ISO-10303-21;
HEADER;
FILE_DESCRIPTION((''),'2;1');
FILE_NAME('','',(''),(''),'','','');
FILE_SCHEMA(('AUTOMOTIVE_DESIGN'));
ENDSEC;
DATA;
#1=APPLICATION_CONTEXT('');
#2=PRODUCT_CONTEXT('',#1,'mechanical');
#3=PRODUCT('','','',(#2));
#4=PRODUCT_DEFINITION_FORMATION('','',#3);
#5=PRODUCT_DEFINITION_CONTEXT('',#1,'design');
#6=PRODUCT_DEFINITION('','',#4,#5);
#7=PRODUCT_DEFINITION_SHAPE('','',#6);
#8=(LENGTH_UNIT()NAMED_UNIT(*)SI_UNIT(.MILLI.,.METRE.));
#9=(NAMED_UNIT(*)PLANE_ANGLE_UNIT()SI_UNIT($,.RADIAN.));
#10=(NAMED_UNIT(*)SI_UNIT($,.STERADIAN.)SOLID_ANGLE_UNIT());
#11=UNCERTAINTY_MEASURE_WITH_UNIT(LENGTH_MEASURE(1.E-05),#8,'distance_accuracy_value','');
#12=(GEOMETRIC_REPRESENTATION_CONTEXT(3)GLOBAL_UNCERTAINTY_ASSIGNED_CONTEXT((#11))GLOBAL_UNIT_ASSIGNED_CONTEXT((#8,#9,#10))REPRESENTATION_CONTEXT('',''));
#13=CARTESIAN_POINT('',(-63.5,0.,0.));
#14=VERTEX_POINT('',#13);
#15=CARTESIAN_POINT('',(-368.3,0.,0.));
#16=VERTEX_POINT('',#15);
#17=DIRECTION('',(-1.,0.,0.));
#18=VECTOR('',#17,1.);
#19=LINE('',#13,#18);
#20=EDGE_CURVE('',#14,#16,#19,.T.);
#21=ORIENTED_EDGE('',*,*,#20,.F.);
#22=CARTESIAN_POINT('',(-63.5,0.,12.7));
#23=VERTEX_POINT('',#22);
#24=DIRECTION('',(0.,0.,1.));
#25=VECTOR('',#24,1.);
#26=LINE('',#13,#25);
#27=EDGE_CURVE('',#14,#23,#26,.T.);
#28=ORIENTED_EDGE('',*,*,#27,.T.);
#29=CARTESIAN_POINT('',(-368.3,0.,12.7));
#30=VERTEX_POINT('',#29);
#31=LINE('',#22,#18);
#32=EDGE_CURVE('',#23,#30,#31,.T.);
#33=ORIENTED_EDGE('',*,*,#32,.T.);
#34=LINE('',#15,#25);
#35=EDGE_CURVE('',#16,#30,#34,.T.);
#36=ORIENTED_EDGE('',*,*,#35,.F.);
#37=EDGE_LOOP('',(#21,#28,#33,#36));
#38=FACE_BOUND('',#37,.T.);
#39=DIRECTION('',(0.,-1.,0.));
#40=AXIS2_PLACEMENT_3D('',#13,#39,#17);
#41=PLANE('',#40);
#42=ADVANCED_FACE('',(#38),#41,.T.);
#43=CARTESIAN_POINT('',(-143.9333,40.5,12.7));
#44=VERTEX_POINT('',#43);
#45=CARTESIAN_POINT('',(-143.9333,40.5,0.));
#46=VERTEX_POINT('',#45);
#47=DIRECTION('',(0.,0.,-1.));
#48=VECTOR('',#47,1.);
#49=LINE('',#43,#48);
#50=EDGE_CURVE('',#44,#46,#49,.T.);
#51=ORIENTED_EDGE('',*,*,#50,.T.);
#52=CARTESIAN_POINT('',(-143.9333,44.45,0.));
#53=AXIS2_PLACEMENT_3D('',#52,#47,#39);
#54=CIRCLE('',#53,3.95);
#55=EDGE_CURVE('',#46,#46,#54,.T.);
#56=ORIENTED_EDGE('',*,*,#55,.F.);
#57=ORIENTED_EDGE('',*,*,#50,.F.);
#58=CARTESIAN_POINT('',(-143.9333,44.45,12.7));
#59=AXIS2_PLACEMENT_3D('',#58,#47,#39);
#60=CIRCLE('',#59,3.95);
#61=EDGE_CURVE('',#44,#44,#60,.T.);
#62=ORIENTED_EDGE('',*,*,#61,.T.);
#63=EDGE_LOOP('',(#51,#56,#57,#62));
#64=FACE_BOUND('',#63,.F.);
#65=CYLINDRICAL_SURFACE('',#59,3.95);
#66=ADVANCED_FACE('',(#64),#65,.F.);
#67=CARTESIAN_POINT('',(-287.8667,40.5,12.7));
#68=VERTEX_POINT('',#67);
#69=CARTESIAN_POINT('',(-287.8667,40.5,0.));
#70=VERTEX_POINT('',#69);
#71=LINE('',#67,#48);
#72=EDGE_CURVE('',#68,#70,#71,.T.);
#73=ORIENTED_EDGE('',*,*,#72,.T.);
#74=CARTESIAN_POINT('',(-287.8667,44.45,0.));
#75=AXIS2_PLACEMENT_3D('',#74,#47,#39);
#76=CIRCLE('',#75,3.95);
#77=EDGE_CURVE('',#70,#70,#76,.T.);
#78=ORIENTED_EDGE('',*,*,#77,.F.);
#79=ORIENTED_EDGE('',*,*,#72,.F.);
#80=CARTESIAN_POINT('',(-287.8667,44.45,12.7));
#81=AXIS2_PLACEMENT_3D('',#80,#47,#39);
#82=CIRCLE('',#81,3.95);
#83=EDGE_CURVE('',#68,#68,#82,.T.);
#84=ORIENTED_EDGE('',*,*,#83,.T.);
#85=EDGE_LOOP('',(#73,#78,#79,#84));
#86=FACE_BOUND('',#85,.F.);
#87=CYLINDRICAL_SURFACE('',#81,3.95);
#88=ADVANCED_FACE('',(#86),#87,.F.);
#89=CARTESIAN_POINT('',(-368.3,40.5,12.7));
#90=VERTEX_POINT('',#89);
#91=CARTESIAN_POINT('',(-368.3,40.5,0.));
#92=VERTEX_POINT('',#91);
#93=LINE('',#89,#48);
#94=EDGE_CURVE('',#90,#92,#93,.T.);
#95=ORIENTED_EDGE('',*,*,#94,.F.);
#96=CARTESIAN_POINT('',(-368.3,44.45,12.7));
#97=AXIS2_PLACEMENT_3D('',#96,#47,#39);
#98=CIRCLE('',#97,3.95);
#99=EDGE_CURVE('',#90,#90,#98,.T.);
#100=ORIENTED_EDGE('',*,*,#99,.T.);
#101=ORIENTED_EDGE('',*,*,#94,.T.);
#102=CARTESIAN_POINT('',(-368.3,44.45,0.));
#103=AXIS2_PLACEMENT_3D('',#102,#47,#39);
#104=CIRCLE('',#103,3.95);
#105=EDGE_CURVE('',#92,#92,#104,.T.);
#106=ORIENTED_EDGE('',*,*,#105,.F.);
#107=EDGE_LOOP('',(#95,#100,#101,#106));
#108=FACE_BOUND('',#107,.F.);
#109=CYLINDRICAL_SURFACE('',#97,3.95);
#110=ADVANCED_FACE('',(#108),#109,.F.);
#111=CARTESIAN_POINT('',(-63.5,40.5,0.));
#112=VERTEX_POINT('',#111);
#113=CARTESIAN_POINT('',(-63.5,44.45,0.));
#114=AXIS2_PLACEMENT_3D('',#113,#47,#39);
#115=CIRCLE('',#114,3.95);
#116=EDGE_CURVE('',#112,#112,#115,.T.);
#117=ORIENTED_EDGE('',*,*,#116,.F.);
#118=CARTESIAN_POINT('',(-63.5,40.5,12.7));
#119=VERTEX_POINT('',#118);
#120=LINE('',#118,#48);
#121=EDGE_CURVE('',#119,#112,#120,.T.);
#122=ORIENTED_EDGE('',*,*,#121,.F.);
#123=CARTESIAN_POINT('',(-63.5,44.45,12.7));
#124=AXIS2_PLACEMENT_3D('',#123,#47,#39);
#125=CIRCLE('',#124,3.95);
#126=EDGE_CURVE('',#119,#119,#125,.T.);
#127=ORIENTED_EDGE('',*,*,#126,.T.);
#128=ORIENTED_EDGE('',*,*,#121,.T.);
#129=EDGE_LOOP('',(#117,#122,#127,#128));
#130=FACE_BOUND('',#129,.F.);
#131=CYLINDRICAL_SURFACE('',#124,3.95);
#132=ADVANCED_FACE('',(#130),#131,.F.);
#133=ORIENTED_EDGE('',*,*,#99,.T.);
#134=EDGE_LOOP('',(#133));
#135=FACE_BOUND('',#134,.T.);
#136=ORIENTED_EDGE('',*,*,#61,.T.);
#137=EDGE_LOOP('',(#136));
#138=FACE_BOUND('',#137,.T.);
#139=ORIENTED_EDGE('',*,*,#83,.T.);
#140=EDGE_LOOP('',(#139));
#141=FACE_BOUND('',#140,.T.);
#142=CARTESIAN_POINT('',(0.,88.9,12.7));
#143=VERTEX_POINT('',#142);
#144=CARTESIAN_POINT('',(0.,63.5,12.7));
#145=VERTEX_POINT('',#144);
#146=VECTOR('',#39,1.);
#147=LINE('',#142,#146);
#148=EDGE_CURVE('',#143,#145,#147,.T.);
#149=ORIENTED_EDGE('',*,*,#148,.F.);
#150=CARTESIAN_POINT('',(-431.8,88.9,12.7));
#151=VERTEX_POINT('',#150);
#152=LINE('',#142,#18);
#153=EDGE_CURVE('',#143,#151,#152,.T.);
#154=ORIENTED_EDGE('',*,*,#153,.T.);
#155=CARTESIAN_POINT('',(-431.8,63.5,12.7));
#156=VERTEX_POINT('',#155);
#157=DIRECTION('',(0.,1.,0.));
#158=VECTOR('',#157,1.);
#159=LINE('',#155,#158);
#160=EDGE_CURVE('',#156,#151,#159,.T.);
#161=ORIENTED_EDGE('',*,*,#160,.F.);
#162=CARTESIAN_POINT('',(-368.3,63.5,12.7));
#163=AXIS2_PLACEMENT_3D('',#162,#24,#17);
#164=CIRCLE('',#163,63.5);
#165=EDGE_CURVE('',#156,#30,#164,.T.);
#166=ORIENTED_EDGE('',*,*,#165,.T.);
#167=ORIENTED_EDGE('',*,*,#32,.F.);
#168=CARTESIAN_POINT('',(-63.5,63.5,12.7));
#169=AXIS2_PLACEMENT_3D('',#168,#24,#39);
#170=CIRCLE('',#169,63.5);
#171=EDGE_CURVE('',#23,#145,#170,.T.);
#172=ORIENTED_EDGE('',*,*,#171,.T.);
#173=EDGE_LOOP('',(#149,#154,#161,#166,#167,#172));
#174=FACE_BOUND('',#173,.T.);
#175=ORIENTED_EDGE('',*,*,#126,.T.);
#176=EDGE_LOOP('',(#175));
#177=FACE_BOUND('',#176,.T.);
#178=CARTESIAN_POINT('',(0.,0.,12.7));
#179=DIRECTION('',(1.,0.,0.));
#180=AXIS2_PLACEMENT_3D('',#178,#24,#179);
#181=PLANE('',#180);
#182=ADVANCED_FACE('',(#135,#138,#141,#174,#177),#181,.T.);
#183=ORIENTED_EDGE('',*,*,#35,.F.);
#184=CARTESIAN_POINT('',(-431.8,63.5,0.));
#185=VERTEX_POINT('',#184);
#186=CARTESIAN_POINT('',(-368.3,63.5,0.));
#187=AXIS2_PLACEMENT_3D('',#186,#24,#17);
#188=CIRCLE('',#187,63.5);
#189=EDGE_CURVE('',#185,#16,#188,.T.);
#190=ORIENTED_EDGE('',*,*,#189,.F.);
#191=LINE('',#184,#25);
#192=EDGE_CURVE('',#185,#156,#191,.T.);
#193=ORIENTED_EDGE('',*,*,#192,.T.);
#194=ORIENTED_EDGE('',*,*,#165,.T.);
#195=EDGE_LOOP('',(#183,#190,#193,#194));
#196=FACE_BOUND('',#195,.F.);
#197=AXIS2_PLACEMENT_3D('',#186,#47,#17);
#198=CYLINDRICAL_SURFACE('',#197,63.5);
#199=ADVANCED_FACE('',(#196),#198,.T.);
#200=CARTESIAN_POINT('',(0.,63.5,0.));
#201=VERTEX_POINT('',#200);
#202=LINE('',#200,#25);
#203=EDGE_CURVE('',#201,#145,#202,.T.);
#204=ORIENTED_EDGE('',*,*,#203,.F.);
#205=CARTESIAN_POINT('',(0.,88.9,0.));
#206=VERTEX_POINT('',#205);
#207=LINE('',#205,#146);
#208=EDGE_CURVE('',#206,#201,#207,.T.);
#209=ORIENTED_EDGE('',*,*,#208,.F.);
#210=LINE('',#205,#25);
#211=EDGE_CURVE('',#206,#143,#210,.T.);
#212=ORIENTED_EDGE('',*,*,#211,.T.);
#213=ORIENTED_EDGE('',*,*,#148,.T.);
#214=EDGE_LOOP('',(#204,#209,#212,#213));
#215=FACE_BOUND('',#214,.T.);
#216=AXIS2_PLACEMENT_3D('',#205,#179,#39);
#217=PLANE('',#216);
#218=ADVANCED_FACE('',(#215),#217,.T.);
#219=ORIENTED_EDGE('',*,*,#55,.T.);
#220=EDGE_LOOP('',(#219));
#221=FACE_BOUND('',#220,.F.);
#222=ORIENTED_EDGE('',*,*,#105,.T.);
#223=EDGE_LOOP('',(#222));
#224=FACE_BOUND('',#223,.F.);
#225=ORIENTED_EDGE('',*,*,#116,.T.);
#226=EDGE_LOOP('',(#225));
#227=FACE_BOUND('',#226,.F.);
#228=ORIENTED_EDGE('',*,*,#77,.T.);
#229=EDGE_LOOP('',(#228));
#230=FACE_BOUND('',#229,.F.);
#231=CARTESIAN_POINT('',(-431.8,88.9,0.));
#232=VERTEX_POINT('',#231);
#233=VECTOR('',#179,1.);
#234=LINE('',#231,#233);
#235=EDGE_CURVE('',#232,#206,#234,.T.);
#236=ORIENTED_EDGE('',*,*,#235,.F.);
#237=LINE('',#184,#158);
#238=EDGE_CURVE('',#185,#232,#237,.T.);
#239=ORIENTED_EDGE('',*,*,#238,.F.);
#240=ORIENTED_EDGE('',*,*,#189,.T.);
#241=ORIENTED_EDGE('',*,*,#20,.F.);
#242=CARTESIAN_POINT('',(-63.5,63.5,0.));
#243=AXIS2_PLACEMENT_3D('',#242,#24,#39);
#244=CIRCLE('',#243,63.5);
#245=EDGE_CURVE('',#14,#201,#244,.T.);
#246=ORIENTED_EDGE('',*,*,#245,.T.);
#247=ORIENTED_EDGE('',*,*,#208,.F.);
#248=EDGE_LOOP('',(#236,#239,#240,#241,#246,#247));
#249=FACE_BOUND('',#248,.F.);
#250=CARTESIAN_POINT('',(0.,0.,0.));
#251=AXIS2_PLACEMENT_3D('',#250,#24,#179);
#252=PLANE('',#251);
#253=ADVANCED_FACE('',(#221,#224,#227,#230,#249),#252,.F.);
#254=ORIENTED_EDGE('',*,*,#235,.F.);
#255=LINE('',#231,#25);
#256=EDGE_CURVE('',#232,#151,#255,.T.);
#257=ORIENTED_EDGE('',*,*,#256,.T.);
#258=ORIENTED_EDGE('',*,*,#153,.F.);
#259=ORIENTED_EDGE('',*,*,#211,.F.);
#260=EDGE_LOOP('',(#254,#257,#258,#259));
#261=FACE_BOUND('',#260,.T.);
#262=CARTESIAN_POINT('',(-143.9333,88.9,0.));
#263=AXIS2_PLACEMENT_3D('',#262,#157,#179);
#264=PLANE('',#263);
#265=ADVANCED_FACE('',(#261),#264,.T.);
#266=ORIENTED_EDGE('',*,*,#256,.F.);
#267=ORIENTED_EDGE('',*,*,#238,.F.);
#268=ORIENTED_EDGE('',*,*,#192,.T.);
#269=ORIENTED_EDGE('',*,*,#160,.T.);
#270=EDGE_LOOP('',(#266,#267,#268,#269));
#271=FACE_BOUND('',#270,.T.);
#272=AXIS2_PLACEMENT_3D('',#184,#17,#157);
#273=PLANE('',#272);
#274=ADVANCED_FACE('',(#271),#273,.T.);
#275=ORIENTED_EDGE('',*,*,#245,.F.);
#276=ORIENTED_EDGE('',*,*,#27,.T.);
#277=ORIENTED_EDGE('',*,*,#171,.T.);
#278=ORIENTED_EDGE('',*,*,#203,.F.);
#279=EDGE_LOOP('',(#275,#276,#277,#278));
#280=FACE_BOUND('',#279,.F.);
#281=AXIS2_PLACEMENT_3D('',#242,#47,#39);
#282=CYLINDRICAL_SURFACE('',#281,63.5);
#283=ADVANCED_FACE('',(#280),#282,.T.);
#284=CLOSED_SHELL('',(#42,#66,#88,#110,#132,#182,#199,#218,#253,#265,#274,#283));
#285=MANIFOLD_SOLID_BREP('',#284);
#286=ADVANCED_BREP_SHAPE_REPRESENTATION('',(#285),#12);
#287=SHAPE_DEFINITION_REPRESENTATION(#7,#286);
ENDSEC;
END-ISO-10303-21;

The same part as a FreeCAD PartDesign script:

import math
import FreeCAD as App
import Part
import Sketcher
Q = App.Units.Quantity

doc = App.newDocument("Part")
body = doc.addObject("PartDesign::Body", "Body")

# Sketch on XY plane
sketch1 = body.newObject("Sketcher::SketchObject", "Sketch")
sketch1.AttachmentSupport = (doc.getObject("XY_Plane"), [""])
sketch1.MapMode = "FlatFace"
sketch1.addGeometry([
    Part.LineSegment(App.Vector(-368, 0, 0), App.Vector(-64, 0, 0)),  # 0
    Part.ArcOfCircle(Part.Circle(App.Vector(-64, 64, 0), App.Vector(0, 0, 1), 64), math.radians(-90), math.radians(0)),  # 1
    Part.LineSegment(App.Vector(0, 64, 0), App.Vector(0, 89, 0)),  # 2
    Part.LineSegment(App.Vector(0, 89, 0), App.Vector(-432, 89, 0)),  # 3
    Part.LineSegment(App.Vector(-432, 89, 0), App.Vector(-432, 64, 0)),  # 4
    Part.ArcOfCircle(Part.Circle(App.Vector(-368, 64, 0), App.Vector(0, 0, 1), 64), math.radians(180), math.radians(270)),  # 5
], False)
sketch1.addConstraint([
    Sketcher.Constraint("Tangent", 0, 2, 1, 1),
    Sketcher.Constraint("Tangent", 1, 2, 2, 1),
    Sketcher.Constraint("Coincident", 2, 2, 3, 1),
    Sketcher.Constraint("Coincident", 3, 2, 4, 1),
    Sketcher.Constraint("Tangent", 4, 2, 5, 1),
    Sketcher.Constraint("Tangent", 5, 2, 0, 1),
    Sketcher.Constraint("Horizontal", 0),
    Sketcher.Constraint("Vertical", 2),
    Sketcher.Constraint("Horizontal", 3),
    Sketcher.Constraint("Vertical", 4),
    Sketcher.Constraint("Equal", 1, 5),
    Sketcher.Constraint("PointOnObject", 0, 2, -1),
    Sketcher.Constraint("PointOnObject", 1, 2, -2),
    Sketcher.Constraint("Radius", 1, Q("2.5 in")),
    Sketcher.Constraint("DistanceX", 3, 2, 3, 1, Q("17 in")),
    Sketcher.Constraint("DistanceY", -1, 1, 2, 2, Q("3.5 in")),
])
pad1 = body.newObject("PartDesign::Pad", "Pad")
pad1.Profile = sketch1
pad1.Length = Q("0.5 in")

# Sketch on XY plane
sketch2 = body.newObject("Sketcher::SketchObject", "Sketch001")
sketch2.AttachmentSupport = (doc.getObject("XY_Plane"), [""])
sketch2.MapMode = "FlatFace"
sketch2.AttachmentOffset = App.Placement(App.Vector(0, 0, 0.5 * 25.4), App.Rotation())
sketch2.addGeometry([
    Part.Circle(App.Vector(-368.3, 44.5, 0), App.Vector(0, 0, 1), 4),
    Part.Circle(App.Vector(-287.9, 44.5, 0), App.Vector(0, 0, 1), 4),
    Part.Circle(App.Vector(-143.9, 44.5, 0), App.Vector(0, 0, 1), 4),
    Part.Circle(App.Vector(-63.5, 44.5, 0), App.Vector(0, 0, 1), 4),
], False)
sketch2.addConstraint([
    Sketcher.Constraint("Equal", 0, 1),
    Sketcher.Constraint("Equal", 1, 2),
    Sketcher.Constraint("Equal", 2, 3),
    Sketcher.Constraint("Horizontal", 0, 3, 1, 3),
    Sketcher.Constraint("Horizontal", 1, 3, 2, 3),
    Sketcher.Constraint("Horizontal", 2, 3, 3, 3),
    Sketcher.Constraint("DistanceX", 0, 3, 3, 3, Q("12 in")),
    Sketcher.Constraint("DistanceX", 0, 3, -1, 1, Q("14.5 in")),
    Sketcher.Constraint("Diameter", 0, Q("7.9 mm")),
    Sketcher.Constraint("DistanceY", -1, 1, 0, 3, Q("1.75 in")),
    Sketcher.Constraint("DistanceX", 1, 3, -1, 1, Q("287.8667 mm")),
    Sketcher.Constraint("DistanceX", 2, 3, -1, 1, Q("143.9333 mm")),
])
doc.recompute()
hole = body.newObject("PartDesign::Hole", "Hole")
hole.Profile = sketch2
hole.ThreadType = "None"
hole.Diameter = 7.9
hole.DepthType = "ThroughAll"

doc.recompute()
